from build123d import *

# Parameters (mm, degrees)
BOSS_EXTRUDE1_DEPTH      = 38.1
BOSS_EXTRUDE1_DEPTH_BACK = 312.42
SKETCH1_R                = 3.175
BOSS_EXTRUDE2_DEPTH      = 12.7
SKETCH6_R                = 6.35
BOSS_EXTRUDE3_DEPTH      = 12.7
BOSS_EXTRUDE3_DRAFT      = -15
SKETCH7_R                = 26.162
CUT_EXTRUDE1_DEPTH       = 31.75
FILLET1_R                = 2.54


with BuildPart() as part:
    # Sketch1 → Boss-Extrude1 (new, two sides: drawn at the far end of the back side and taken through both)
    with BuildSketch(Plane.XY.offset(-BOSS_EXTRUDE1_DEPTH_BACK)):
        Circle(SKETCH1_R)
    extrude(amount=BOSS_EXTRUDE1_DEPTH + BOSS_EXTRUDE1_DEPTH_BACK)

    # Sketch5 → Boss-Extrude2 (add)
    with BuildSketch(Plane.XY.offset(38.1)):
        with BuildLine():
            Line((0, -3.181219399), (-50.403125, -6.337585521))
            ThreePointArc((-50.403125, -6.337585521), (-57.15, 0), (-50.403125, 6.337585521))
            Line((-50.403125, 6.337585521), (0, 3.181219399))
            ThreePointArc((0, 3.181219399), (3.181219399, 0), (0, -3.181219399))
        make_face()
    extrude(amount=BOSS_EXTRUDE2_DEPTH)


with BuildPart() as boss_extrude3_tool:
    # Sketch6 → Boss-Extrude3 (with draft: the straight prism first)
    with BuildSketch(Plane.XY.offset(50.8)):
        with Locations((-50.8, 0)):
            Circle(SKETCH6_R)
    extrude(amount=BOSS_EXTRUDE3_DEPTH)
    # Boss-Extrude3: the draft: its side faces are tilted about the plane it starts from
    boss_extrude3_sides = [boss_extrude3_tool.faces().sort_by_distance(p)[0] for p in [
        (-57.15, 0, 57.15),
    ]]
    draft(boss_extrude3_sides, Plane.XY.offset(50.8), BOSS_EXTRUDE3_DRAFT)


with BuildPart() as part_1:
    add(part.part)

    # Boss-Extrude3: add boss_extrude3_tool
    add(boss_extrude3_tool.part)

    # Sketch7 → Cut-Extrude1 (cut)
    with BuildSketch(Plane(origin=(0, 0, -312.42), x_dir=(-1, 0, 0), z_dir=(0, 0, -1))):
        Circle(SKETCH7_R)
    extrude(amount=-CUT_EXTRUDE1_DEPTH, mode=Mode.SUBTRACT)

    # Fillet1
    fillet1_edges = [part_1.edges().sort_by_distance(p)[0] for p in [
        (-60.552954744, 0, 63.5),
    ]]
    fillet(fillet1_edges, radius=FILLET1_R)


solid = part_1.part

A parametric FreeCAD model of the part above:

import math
import FreeCAD as App
import Part
import Sketcher
Q = App.Units.Quantity


def edges_at(feature, points):
    """Names of the edges that pass closest to the given points."""
    edges = feature.Shape.Edges
    near = lambda p: min(range(len(edges)), key=lambda i: edges[i].distToShape(Part.Vertex(*p))[0])
    return sorted({f"Edge{near(p) + 1}" for p in points})


def faces_at(feature, points):
    """Names of the faces that lie closest to the given points."""
    faces = feature.Shape.Faces
    near = lambda p: min(range(len(faces)), key=lambda i: faces[i].distToShape(Part.Vertex(*p))[0])
    return sorted({f"Face{near(p) + 1}" for p in points})

doc = App.newDocument("Part")
body = doc.addObject("PartDesign::Body", "Body")

# Sketch on XY plane
sketch1 = doc.addObject("Sketcher::SketchObject", "Sketch")
body.addObject(sketch1)
sketch1.AttachmentSupport = (doc.XY_Plane, [""])
sketch1.MapMode = "FlatFace"
sketch1.addGeometry(Part.Circle(App.Vector(0, 0, 0), App.Vector(0, 0, 1), 3.2), False)
sketch1.addConstraint([
    Sketcher.Constraint("Coincident", 0, 3, -1, 1),
    Sketcher.Constraint("Diameter", 0, Q("0.25 in")),
])
pad1 = doc.addObject("PartDesign::Pad", "Pad")
body.addObject(pad1)
pad1.Profile = sketch1
pad1.Type = "TwoLengths"
pad1.Length = Q("1.5 in")
pad1.Length2 = Q("12.3 in")

# Sketch on XY plane
sketch2 = doc.addObject("Sketcher::SketchObject", "Sketch001")
body.addObject(sketch2)
sketch2.AttachmentSupport = (doc.XY_Plane, [""])
sketch2.MapMode = "FlatFace"
sketch2.AttachmentOffset = App.Placement(App.Vector(0, 0, 1.5 * 25.4), App.Rotation())
sketch2.addGeometry([
    Part.LineSegment(App.Vector(-50.4, -6.3, 0), App.Vector(0, -3.2, 0)),
    Part.ArcOfCircle(Part.Circle(App.Vector(0, 0, 0), App.Vector(0, 0, 1), 3.2), math.radians(-90), math.radians(90)),
    Part.LineSegment(App.Vector(0, 3.2, 0), App.Vector(-50.4, 6.3, 0)),
    Part.ArcOfCircle(Part.Circle(App.Vector(-50.8, 0, 0), App.Vector(0, 0, 1), 6.3), math.radians(86), math.radians(274)),
], False)
sketch2.addConstraint([
    Sketcher.Constraint("Coincident", 0, 2, 1, 1),
    Sketcher.Constraint("Coincident", 1, 2, 2, 1),
    Sketcher.Constraint("Tangent", 2, 2, 3, 1),
    Sketcher.Constraint("Tangent", 3, 2, 0, 1),
    Sketcher.Constraint("Coincident", 1, 3, -1, 1),
    Sketcher.Constraint("Symmetric", 2, 2, 3, 2, -1),
    Sketcher.Constraint("PointOnObject", 0, 2, -2),
    Sketcher.Constraint("Radius", 3, Q("0.25 in")),
    Sketcher.Constraint("DistanceX", 3, 3, -1, 1, Q("2 in")),
    Sketcher.Constraint("DistanceX", 2, 2, -1, 1, Q("1.984375 in")),
])
pad2 = doc.addObject("PartDesign::Pad", "Pad001")
body.addObject(pad2)
pad2.Profile = sketch2
pad2.Length = Q("0.5 in")
body2 = doc.addObject("PartDesign::Body", "Body001")

# Sketch on XY plane
sketch3 = doc.addObject("Sketcher::SketchObject", "Sketch002")
body2.addObject(sketch3)
sketch3.AttachmentSupport = (doc.getObject("XY_Plane001"), [""])
sketch3.MapMode = "FlatFace"
sketch3.AttachmentOffset = App.Placement(App.Vector(0, 0, 2 * 25.4), App.Rotation())
sketch3.addGeometry(Part.Circle(App.Vector(-51, 0, 0), App.Vector(0, 0, 1), 6), False)
sketch3.addConstraint([
    Sketcher.Constraint("PointOnObject", 0, 3, -1),
    Sketcher.Constraint("Diameter", 0, Q("0.5 in")),
    Sketcher.Constraint("DistanceX", 0, 3, -1, 1, Q("2 in")),
])
pad3 = doc.addObject("PartDesign::Pad", "Pad002")
body2.addObject(pad3)
pad3.Profile = sketch3
pad3.Length = Q("0.5 in")
doc.recompute()

datumplane = doc.addObject("PartDesign::Plane", "DatumPlane")
body2.addObject(datumplane)
datumplane.AttachmentSupport = (doc.getObject("XY_Plane001"), [""])
datumplane.MapMode = "FlatFace"
datumplane.AttachmentOffset = App.Placement(App.Vector(0, 0, 2 * 25.4), App.Rotation())
draft = doc.addObject("PartDesign::Draft", "Draft")
body2.addObject(draft)
draft.Base = (pad3, faces_at(pad3, [(-57.15, 0, 57.15)]))
draft.NeutralPlane = (datumplane, [""])
draft.Angle = 15
draft.Reversed = True
doc.recompute()

boolean = doc.addObject("PartDesign::Boolean", "Boolean")
body.addObject(boolean)
boolean.Type = "Fuse"
boolean.addObjects([body2])

# Sketch on XY plane
sketch4 = doc.addObject("Sketcher::SketchObject", "Sketch003")
body.addObject(sketch4)
sketch4.AttachmentSupport = (doc.XY_Plane, [""])
sketch4.MapMode = "FlatFace"
sketch4.AttachmentOffset = App.Placement(App.Vector(0, 0, -12.3 * 25.4), App.Rotation())
sketch4.addGeometry(Part.Circle(App.Vector(0, 0, 0), App.Vector(0, 0, 1), 26), False)
sketch4.addConstraint([
    Sketcher.Constraint("Coincident", 0, 3, -1, 1),
    Sketcher.Constraint("Diameter", 0, Q("2.06 in")),
])
pocket1 = doc.addObject("PartDesign::Pocket", "Pocket")
body.addObject(pocket1)
pocket1.Profile = sketch4
pocket1.Length = Q("1.25 in")
pocket1.Reversed = True
doc.recompute()

fillet = doc.addObject("PartDesign::Fillet", "Fillet")
body.addObject(fillet)
fillet.Base = (pocket1, edges_at(pocket1, [(-60.553, 0, 63.5)]))
fillet.Radius = Q("0.1 in")

doc.recompute()
